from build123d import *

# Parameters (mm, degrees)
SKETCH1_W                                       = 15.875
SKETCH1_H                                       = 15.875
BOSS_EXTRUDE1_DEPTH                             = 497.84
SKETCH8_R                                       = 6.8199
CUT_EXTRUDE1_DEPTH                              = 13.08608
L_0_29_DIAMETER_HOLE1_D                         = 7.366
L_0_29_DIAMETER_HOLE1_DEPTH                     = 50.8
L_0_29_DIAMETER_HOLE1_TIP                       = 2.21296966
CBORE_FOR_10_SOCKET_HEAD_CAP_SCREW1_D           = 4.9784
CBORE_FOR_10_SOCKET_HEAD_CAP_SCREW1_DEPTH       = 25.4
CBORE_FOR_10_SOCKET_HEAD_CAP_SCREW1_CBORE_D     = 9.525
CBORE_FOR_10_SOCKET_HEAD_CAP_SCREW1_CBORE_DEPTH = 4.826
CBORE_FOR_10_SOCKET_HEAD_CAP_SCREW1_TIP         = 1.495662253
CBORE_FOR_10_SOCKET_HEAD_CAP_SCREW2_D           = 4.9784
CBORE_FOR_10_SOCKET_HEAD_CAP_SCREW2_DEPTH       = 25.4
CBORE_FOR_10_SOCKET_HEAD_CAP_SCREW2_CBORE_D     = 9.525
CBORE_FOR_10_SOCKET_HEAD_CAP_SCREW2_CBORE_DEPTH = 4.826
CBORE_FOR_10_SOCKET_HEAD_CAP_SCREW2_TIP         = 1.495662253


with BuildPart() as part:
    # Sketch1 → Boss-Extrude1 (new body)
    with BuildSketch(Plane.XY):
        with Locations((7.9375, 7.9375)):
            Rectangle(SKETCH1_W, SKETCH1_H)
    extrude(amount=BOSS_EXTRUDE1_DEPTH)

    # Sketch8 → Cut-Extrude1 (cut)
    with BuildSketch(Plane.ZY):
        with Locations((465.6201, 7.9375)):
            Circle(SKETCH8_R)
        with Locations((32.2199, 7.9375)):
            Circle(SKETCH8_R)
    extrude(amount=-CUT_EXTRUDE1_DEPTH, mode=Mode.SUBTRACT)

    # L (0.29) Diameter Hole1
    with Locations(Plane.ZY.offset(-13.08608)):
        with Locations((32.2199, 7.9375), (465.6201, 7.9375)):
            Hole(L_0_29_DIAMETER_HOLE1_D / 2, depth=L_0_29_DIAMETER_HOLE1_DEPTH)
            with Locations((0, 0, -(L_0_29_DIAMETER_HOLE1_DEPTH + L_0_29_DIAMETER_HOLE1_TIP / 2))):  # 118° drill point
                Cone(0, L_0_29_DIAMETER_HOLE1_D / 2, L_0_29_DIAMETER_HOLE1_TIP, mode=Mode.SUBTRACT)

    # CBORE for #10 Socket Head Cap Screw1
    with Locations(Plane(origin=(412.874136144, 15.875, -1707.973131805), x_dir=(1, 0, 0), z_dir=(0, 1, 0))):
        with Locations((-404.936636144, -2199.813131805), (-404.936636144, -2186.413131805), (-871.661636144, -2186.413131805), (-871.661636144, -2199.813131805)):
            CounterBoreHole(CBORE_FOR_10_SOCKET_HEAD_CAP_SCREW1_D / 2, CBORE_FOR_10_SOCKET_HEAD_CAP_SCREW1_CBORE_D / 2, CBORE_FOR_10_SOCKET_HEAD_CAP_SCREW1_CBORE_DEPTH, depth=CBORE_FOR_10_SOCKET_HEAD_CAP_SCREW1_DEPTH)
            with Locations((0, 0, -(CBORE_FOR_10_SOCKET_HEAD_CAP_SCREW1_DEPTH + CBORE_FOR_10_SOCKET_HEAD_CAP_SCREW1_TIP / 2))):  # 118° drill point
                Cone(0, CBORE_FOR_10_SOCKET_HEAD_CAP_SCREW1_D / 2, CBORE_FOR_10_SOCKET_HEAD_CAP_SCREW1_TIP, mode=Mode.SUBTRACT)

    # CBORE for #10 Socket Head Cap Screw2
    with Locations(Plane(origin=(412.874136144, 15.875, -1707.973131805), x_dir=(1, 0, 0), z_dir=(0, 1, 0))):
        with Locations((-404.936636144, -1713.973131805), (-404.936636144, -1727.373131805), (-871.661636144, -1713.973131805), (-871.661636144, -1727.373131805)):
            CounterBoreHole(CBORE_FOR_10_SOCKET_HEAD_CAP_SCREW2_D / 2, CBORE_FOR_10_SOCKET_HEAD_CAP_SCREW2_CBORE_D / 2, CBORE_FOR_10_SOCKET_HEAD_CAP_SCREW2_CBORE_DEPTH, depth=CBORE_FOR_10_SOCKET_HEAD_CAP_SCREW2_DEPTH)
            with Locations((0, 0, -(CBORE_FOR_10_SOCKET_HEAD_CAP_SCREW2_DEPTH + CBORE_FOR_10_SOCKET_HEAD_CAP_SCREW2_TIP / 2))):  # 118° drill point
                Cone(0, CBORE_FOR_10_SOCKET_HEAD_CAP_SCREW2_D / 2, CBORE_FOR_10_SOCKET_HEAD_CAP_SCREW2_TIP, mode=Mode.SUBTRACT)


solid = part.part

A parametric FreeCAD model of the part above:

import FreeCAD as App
import Part
import Sketcher
from FreeCAD import Vector
Q = App.Units.Quantity

doc = App.newDocument("Part")
params = doc.addObject("Spreadsheet::Sheet", "Params")
for row, (alias, value) in enumerate([
    ("sketch1_width", "0.625 in"),
    ("pad1_length", "19.6 in"),
    ("sketch2_diameter", "0.537 in"),
    ("pocket1_length", "0.5152 in"),
    ("sketch3_diameter", "0.29 in"),
    ("hole_diameter", "0.29 in"),
    ("hole_depth", "2 in"),
    ("sketch4_diameter", "0.196 in"),
    ("hole2_diameter", "0.196 in"),
    ("hole2_depth", "1 in"),
    ("hole2_cbore_diameter", "0.375 in"),
    ("hole2_cbore_depth", "0.19 in"),
    ("sketch5_diameter", "0.196 in"),
    ("hole3_diameter", "0.196 in"),
    ("hole3_depth", "1 in"),
    ("hole3_cbore_diameter", "0.375 in"),
    ("hole3_cbore_depth", "0.19 in"),
], start=1):
    params.set(f"A{row}", alias)
    params.set(f"B{row}", "=" + value)
    params.setAlias(f"B{row}", alias)

body = doc.addObject("PartDesign::Body", "Body")

sketch1 = body.newObject("Sketcher::SketchObject", "Sketch")
sketch1.AttachmentSupport = (doc.getObject("XY_Plane"), [""])
sketch1.MapMode = "FlatFace"
sketch1.addGeometry([
    Part.LineSegment(Vector(0, 16, 0), Vector(0, 0, 0)),
    Part.LineSegment(Vector(0, 0, 0), Vector(16, 0, 0)),
    Part.LineSegment(Vector(16, 0, 0), Vector(16, 16, 0)),
    Part.LineSegment(Vector(16, 16, 0), Vector(0, 16, 0)),
], False)
sketch1.addConstraint([
    Sketcher.Constraint("Coincident", 0, 2, 1, 1),
    Sketcher.Constraint("Coincident", 1, 2, 2, 1),
    Sketcher.Constraint("Coincident", 2, 2, 3, 1),
    Sketcher.Constraint("Coincident", 3, 2, 0, 1),
    Sketcher.Constraint("Vertical", 0),
    Sketcher.Constraint("Horizontal", 1),
    Sketcher.Constraint("Vertical", 2),
    Sketcher.Constraint("Horizontal", 3),
    Sketcher.Constraint("Coincident", 0, 2, -1, 1),
    Sketcher.Constraint("Equal", 3, 0),
    Sketcher.Constraint("DistanceX", 1, 1, 1, 2, Q("0.625 in")),
])
sketch1.setExpression("Constraints[10]", "Params.sketch1_width")
pad1 = body.newObject("PartDesign::Pad", "Pad")
pad1.Profile = sketch1
pad1.setExpression("Length", "Params.pad1_length")

sketch2 = body.newObject("Sketcher::SketchObject", "Sketch001")
sketch2.AttachmentSupport = (doc.getObject("YZ_Plane"), [""])
sketch2.MapMode = "FlatFace"
sketch2.addGeometry([
    Part.Circle(Vector(8, 466, 0), Vector(0, 0, 1), 7),
    Part.Circle(Vector(8, 32, 0), Vector(0, 0, 1), 7),
], False)
sketch2.addConstraint([
    Sketcher.Constraint("Equal", 0, 1),
    Sketcher.Constraint("Vertical", 0, 3, 1, 3),
    Sketcher.Constraint("Diameter", 0, Q("0.537 in")),
    Sketcher.Constraint("DistanceX", -1, 1, 0, 3, Q("0.3125 in")),
    Sketcher.Constraint("DistanceY", 1, 3, 0, 3, Q("17.063 in")),
    Sketcher.Constraint("DistanceY", -1, 1, 0, 3, Q("18.3315 in")),
])
sketch2.setExpression("Constraints[2]", "Params.sketch2_diameter")
pocket1 = body.newObject("PartDesign::Pocket", "Pocket")
pocket1.Profile = sketch2
pocket1.setExpression("Length", "Params.pocket1_length")
pocket1.Reversed = True

sketch3 = body.newObject("Sketcher::SketchObject", "Sketch002")
sketch3.AttachmentSupport = (doc.getObject("YZ_Plane"), [""])
sketch3.MapMode = "FlatFace"
sketch3.AttachmentOffset = App.Placement(Vector(0, 0, 0.5152 * 25.4), App.Rotation())
sketch3.addGeometry([
    Part.Circle(Vector(7.9, 32.2, 0), Vector(0, 0, 1), 3.7),
    Part.Circle(Vector(7.9, 465.6, 0), Vector(0, 0, 1), 3.7),
], False)
sketch3.addConstraint([
    Sketcher.Constraint("Equal", 0, 1),
    Sketcher.Constraint("Vertical", 0, 3, 1, 3),
    Sketcher.Constraint("Diameter", 0, Q("0.29 in")),
    Sketcher.Constraint("DistanceX", -1, 1, 0, 3, Q("0.3125 in")),
    Sketcher.Constraint("DistanceY", 0, 3, 1, 3, Q("17.063 in")),
    Sketcher.Constraint("DistanceY", -1, 1, 0, 3, Q("1.2685 in")),
])
sketch3.setExpression("Constraints[2]", "Params.sketch3_diameter")
doc.recompute()
hole = body.newObject("PartDesign::Hole", "Hole")
hole.Profile = sketch3
hole.ThreadType = "None"
hole.setExpression("Diameter", "Params.hole_diameter")
hole.DepthType = "Dimension"
hole.setExpression("Depth", "Params.hole_depth")
hole.DrillPoint = "Angled"
hole.DrillPointAngle = 118
hole.Reversed = True

sketch4 = body.newObject("Sketcher::SketchObject", "Sketch003")
sketch4.AttachmentSupport = (doc.getObject("XZ_Plane"), [""])
sketch4.MapMode = "FlatFace"
sketch4.AttachmentOffset = App.Placement(Vector(0, 0, -0.625 * 25.4), App.Rotation())
sketch4.addGeometry([
    Part.Circle(Vector(7.9, 491.8, 0), Vector(0, 0, 1), 2.5),
    Part.Circle(Vector(7.9, 478.4, 0), Vector(0, 0, 1), 2.5),
    Part.Circle(Vector(-458.8, 478.4, 0), Vector(0, 0, 1), 2.5),
    Part.Circle(Vector(-458.8, 491.8, 0), Vector(0, 0, 1), 2.5),
], False)
sketch4.addConstraint([
    Sketcher.Constraint("Equal", 0, 1),
    Sketcher.Constraint("Equal", 1, 2),
    Sketcher.Constraint("Equal", 2, 3),
    Sketcher.Constraint("Horizontal", 1, 3, 2, 3),
    Sketcher.Constraint("Horizontal", 0, 3, 3, 3),
    Sketcher.Constraint("Vertical", 0, 3, 1, 3),
    Sketcher.Constraint("Vertical", 2, 3, 3, 3),
    Sketcher.Constraint("Diameter", 0, Q("0.196 in")),
    Sketcher.Constraint("DistanceX", -1, 1, 0, 3, Q("0.3125 in")),
    Sketcher.Constraint("DistanceX", 2, 3, -1, 1, Q("18.0625 in")),
    Sketcher.Constraint("DistanceY", -1, 1, 0, 3, 491.84),
    Sketcher.Constraint("DistanceY", -1, 1, 1, 3, 478.44),
])
sketch4.setExpression("Constraints[7]", "Params.sketch4_diameter")
doc.recompute()
hole2 = body.newObject("PartDesign::Hole", "Hole001")
hole2.Profile = sketch4
hole2.ThreadType = "None"
hole2.setExpression("Diameter", "Params.hole2_diameter")
hole2.DepthType = "Dimension"
hole2.setExpression("Depth", "Params.hole2_depth")
hole2.DrillPoint = "Angled"
hole2.DrillPointAngle = 118
hole2.HoleCutType = "Counterbore"
hole2.setExpression("HoleCutDiameter", "Params.hole2_cbore_diameter")
hole2.setExpression("HoleCutDepth", "Params.hole2_cbore_depth")
hole2.Reversed = True

sketch5 = body.newObject("Sketcher::SketchObject", "Sketch004")
sketch5.AttachmentSupport = (doc.getObject("XZ_Plane"), [""])
sketch5.MapMode = "FlatFace"
sketch5.AttachmentOffset = App.Placement(Vector(0, 0, -0.625 * 25.4), App.Rotation())
sketch5.addGeometry([
    Part.Circle(Vector(7.9, 6, 0), Vector(0, 0, 1), 2.5),
    Part.Circle(Vector(7.9, 19.4, 0), Vector(0, 0, 1), 2.5),
    Part.Circle(Vector(-458.8, 6, 0), Vector(0, 0, 1), 2.5),
    Part.Circle(Vector(-458.8, 19.4, 0), Vector(0, 0, 1), 2.5),
], False)
sketch5.addConstraint([
    Sketcher.Constraint("Equal", 0, 1),
    Sketcher.Constraint("Equal", 1, 2),
    Sketcher.Constraint("Equal", 2, 3),
    Sketcher.Constraint("Horizontal", 0, 3, 2, 3),
    Sketcher.Constraint("Horizontal", 1, 3, 3, 3),
    Sketcher.Constraint("Vertical", 0, 3, 1, 3),
    Sketcher.Constraint("Vertical", 2, 3, 3, 3),
    Sketcher.Constraint("Diameter", 0, Q("0.196 in")),
    Sketcher.Constraint("DistanceX", -1, 1, 0, 3, Q("0.3125 in")),
    Sketcher.Constraint("DistanceX", 2, 3, -1, 1, Q("18.0625 in")),
    Sketcher.Constraint("DistanceY", -1, 1, 0, 3, 6.0),
    Sketcher.Constraint("DistanceY", -1, 1, 1, 3, 19.4),
])
sketch5.setExpression("Constraints[7]", "Params.sketch5_diameter")
doc.recompute()
hole3 = body.newObject("PartDesign::Hole", "Hole002")
hole3.Profile = sketch5
hole3.ThreadType = "None"
hole3.setExpression("Diameter", "Params.hole3_diameter")
hole3.DepthType = "Dimension"
hole3.setExpression("Depth", "Params.hole3_depth")
hole3.DrillPoint = "Angled"
hole3.DrillPointAngle = 118
hole3.HoleCutType = "Counterbore"
hole3.setExpression("HoleCutDiameter", "Params.hole3_cbore_diameter")
hole3.setExpression("HoleCutDepth", "Params.hole3_cbore_depth")
hole3.Reversed = True

doc.recompute()
